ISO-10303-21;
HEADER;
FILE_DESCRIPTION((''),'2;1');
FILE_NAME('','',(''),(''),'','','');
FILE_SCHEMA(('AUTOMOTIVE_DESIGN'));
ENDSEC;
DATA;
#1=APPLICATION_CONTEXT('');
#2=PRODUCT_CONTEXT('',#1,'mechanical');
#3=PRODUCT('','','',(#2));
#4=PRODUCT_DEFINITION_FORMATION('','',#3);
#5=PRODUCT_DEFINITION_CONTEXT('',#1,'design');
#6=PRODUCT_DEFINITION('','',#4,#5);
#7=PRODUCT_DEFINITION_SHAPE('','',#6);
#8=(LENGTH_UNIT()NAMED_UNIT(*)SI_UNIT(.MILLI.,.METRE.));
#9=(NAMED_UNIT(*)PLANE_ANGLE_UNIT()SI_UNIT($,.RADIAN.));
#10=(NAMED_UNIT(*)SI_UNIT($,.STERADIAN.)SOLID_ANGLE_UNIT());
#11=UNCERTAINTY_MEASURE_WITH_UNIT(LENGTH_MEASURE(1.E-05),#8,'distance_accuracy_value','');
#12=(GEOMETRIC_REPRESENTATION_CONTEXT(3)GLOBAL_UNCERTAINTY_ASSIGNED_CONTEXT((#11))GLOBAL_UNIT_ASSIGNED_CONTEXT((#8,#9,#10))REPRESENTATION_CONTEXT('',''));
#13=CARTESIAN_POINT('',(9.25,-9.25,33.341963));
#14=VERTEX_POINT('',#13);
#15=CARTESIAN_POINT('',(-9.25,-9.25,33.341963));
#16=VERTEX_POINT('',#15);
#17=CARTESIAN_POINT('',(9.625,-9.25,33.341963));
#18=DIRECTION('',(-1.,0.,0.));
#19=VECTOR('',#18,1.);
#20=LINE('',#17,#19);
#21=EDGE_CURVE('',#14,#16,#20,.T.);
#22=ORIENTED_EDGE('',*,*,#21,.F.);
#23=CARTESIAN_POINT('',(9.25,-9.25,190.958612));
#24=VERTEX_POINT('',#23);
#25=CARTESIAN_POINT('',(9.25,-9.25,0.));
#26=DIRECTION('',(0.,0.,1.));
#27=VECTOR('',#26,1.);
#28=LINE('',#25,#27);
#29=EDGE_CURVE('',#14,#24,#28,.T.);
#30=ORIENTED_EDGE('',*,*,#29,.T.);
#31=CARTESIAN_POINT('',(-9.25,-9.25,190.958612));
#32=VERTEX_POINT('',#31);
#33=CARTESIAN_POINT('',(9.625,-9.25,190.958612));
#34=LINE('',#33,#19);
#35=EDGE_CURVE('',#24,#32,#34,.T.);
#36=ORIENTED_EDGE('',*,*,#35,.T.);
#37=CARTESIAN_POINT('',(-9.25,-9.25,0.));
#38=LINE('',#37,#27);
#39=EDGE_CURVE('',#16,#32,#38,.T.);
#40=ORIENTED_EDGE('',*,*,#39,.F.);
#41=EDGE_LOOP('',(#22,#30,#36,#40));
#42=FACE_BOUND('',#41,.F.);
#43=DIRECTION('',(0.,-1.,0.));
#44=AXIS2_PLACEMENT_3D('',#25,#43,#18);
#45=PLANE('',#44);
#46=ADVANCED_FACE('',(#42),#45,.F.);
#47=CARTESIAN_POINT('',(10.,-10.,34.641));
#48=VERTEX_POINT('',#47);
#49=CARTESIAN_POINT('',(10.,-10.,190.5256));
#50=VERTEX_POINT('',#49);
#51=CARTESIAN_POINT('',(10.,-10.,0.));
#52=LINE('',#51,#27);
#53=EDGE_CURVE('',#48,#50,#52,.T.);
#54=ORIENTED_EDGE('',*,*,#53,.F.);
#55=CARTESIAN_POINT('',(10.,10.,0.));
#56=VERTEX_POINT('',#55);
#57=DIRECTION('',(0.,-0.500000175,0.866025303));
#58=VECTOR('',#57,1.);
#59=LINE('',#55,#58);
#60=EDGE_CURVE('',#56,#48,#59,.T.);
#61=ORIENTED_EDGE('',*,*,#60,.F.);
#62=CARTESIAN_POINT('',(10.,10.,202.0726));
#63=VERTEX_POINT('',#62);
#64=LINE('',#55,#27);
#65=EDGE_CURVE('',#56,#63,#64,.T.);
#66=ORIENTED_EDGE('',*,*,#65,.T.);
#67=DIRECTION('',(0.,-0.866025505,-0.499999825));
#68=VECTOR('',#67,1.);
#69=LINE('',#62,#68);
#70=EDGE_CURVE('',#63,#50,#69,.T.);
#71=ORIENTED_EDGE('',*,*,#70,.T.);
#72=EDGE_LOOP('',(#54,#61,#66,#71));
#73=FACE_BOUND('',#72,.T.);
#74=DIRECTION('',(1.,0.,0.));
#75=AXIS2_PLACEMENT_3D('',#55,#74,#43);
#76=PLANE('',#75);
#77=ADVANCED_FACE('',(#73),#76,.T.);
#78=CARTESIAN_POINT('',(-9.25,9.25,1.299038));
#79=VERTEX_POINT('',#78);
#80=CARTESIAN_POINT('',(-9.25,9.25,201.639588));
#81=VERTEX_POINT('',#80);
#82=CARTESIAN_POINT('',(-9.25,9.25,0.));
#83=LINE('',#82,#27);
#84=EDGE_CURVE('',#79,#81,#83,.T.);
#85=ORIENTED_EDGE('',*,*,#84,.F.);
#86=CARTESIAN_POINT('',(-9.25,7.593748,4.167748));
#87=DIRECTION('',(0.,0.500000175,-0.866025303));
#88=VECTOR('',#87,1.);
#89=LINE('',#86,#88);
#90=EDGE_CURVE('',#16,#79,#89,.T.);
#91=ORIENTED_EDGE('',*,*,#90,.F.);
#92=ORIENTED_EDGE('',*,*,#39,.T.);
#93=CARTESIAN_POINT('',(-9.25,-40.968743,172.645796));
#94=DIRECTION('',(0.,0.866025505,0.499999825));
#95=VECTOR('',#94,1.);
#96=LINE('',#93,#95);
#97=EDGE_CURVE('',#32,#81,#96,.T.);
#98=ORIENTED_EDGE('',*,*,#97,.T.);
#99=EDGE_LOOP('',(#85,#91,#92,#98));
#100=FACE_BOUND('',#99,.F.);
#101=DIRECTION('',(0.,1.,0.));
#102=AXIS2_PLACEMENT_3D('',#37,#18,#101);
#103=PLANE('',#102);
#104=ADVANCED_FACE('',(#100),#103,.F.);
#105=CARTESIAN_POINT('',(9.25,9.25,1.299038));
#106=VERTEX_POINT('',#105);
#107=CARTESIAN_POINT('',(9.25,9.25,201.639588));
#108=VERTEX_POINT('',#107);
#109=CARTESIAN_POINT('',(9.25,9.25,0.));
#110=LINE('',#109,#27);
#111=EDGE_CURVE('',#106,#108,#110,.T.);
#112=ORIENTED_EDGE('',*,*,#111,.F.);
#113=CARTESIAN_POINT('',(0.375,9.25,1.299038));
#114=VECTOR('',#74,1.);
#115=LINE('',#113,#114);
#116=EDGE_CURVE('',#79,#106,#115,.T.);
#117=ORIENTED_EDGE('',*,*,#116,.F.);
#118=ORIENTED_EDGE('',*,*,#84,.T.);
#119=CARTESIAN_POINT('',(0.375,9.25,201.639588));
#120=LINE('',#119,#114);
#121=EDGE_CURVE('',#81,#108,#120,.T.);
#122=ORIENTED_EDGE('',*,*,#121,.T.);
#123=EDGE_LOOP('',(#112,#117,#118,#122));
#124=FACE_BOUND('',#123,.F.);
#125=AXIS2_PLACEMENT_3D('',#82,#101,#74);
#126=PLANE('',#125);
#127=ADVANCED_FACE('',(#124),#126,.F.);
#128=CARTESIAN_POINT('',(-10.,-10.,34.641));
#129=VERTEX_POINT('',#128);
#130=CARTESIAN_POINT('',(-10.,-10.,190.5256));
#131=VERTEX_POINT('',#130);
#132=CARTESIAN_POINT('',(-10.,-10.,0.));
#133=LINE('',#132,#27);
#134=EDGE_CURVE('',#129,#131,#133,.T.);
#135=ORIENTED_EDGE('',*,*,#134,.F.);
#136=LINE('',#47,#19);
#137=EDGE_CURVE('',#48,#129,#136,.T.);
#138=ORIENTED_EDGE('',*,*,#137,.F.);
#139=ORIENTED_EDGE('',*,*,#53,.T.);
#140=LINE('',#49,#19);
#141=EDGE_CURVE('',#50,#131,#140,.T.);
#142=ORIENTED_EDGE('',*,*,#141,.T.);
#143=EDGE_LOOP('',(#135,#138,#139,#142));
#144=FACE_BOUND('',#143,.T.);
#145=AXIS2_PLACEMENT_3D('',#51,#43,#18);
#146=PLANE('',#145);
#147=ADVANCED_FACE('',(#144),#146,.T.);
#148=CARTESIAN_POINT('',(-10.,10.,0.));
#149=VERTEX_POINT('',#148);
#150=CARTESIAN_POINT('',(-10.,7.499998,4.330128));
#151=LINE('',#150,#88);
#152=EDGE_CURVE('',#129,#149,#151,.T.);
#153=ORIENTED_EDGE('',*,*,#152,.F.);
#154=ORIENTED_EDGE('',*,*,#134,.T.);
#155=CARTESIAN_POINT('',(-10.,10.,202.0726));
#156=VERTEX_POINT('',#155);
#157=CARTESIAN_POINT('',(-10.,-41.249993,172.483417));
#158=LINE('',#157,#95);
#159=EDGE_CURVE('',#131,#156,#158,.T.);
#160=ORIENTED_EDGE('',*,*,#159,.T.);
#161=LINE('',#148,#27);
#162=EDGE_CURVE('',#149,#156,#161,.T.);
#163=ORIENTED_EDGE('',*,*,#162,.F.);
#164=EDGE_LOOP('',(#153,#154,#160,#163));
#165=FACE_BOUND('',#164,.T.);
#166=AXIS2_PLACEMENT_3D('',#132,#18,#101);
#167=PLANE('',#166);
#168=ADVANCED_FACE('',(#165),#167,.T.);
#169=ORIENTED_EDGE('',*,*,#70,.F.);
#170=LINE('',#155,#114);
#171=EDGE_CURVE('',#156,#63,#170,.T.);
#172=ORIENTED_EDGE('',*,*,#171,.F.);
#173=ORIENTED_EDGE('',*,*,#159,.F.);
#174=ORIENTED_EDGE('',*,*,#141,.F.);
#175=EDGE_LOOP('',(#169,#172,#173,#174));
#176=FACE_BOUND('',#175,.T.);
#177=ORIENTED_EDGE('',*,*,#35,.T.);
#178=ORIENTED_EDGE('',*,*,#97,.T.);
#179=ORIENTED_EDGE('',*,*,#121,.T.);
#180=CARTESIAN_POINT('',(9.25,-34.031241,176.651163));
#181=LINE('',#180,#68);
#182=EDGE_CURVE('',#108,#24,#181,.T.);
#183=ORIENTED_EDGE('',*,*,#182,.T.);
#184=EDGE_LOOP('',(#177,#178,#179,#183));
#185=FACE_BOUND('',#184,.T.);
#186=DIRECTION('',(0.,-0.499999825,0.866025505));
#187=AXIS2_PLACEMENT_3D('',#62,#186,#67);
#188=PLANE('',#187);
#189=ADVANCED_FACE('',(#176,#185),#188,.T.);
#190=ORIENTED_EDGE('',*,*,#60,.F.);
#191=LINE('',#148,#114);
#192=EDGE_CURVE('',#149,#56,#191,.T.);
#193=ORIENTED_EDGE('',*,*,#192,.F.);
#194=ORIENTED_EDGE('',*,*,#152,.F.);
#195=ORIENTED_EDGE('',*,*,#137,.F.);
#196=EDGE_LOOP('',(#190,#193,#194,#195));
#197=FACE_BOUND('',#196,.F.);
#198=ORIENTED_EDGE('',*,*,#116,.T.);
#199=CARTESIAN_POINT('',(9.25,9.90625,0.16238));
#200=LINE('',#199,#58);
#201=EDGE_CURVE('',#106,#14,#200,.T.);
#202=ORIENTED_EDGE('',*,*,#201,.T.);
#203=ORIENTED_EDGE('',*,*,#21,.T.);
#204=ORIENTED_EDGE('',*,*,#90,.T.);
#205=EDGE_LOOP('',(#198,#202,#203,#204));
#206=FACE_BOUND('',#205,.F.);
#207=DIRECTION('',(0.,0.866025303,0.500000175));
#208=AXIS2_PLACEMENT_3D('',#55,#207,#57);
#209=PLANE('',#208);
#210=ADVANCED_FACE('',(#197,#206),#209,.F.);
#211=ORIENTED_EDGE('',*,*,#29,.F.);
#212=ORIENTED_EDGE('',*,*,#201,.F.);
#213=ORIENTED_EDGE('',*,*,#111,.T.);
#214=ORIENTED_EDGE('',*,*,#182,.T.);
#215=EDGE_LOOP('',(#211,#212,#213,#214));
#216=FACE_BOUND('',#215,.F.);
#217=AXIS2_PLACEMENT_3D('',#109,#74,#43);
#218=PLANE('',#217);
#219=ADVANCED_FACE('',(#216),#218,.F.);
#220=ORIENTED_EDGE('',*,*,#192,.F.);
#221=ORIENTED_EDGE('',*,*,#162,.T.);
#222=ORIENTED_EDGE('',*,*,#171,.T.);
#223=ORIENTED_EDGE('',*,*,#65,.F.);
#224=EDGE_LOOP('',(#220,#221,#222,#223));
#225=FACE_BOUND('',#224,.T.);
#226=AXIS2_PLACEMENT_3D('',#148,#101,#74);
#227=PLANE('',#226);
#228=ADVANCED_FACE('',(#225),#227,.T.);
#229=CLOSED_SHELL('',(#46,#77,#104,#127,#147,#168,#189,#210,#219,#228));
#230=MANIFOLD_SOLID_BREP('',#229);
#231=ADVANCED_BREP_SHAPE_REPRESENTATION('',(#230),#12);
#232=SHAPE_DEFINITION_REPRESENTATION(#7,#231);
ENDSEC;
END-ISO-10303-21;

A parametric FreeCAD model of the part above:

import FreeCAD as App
import Part
import Sketcher
Q = App.Units.Quantity

doc = App.newDocument("Part")
params = doc.addObject("Spreadsheet::Sheet", "Params")
for row, (alias, value) in enumerate([
    ("sketch1_width", "20 mm"),
    ("sketch1_width2", "18.5 mm"),
    ("pad1_length", "202.0726 mm"),
    ("sketch2_width", "20 mm"),
    ("pocket1_length", "178.9786 mm"),
    ("sketch3_width", "20 mm"),
    ("pocket2_length", "202.0726 mm"),
], start=1):
    params.set(f"A{row}", alias)
    params.set(f"B{row}", "=" + value)
    params.setAlias(f"B{row}", alias)

body = doc.addObject("PartDesign::Body", "Body")

sketch1 = body.newObject("Sketcher::SketchObject", "Sketch")
sketch1.AttachmentSupport = (doc.getObject("XY_Plane"), [""])
sketch1.MapMode = "FlatFace"
sketch1.addGeometry([
    Part.LineSegment(App.Vector(-10, -10, 0), App.Vector(10, -10, 0)),
    Part.LineSegment(App.Vector(10, -10, 0), App.Vector(10, 10, 0)),
    Part.LineSegment(App.Vector(10, 10, 0), App.Vector(-10, 10, 0)),
    Part.LineSegment(App.Vector(-10, 10, 0), App.Vector(-10, -10, 0)),
    Part.LineSegment(App.Vector(9, 9, 0), App.Vector(9, -9, 0)),
    Part.LineSegment(App.Vector(9, -9, 0), App.Vector(-9, -9, 0)),
    Part.LineSegment(App.Vector(-9, -9, 0), App.Vector(-9, 9, 0)),
    Part.LineSegment(App.Vector(-9, 9, 0), App.Vector(9, 9, 0)),
], False)
sketch1.addConstraint([
    Sketcher.Constraint("Coincident", 0, 2, 1, 1),
    Sketcher.Constraint("Coincident", 1, 2, 2, 1),
    Sketcher.Constraint("Coincident", 2, 2, 3, 1),
    Sketcher.Constraint("Coincident", 3, 2, 0, 1),
    Sketcher.Constraint("Coincident", 4, 2, 5, 1),
    Sketcher.Constraint("Coincident", 5, 2, 6, 1),
    Sketcher.Constraint("Coincident", 6, 2, 7, 1),
    Sketcher.Constraint("Coincident", 7, 2, 4, 1),
    Sketcher.Constraint("Horizontal", 0),
    Sketcher.Constraint("Vertical", 1),
    Sketcher.Constraint("Horizontal", 2),
    Sketcher.Constraint("Vertical", 3),
    Sketcher.Constraint("Vertical", 4),
    Sketcher.Constraint("Horizontal", 5),
    Sketcher.Constraint("Vertical", 6),
    Sketcher.Constraint("Horizontal", 7),
    Sketcher.Constraint("Symmetric", 0, 2, 2, 2, -1, 1),
    Sketcher.Constraint("Symmetric", 4, 2, 6, 2, -1, 1),
    Sketcher.Constraint("Equal", 2, 1),
    Sketcher.Constraint("Equal", 7, 4),
    Sketcher.Constraint("DistanceX", 0, 1, 0, 2, 20.0),
    Sketcher.Constraint("DistanceX", 5, 2, 5, 1, 18.5),
])
sketch1.setExpression("Constraints[20]", "Params.sketch1_width")
sketch1.setExpression("Constraints[21]", "Params.sketch1_width2")
pad1 = body.newObject("PartDesign::Pad", "Pad")
pad1.Profile = sketch1
pad1.setExpression("Length", "Params.pad1_length")

sketch2 = body.newObject("Sketcher::SketchObject", "Sketch001")
sketch2.AttachmentSupport = (doc.getObject("YZ_Plane"), [""])
sketch2.MapMode = "FlatFace"
sketch2.AttachmentOffset = App.Placement(App.Vector(0, 0, 10), App.Rotation())
sketch2.addGeometry([
    Part.LineSegment(App.Vector(-10, 35, 0), App.Vector(-10, 0, 0)),
    Part.LineSegment(App.Vector(-10, 0, 0), App.Vector(10, 0, 0)),
    Part.LineSegment(App.Vector(10, 0, 0), App.Vector(-10, 35, 0)),
], False)
sketch2.addConstraint([
    Sketcher.Constraint("Coincident", 0, 2, 1, 1),
    Sketcher.Constraint("Coincident", 1, 2, 2, 1),
    Sketcher.Constraint("Coincident", 2, 2, 0, 1),
    Sketcher.Constraint("Vertical", 0),
    Sketcher.Constraint("Horizontal", 1),
    Sketcher.Constraint("Symmetric", 0, 2, 1, 2, -1, 1),
    Sketcher.Constraint("DistanceX", 1, 1, 1, 2, 20.0),
    Sketcher.Constraint("Angle", 2, Q("120 deg")),
])
sketch2.setExpression("Constraints[6]", "Params.sketch2_width")
pocket1 = body.newObject("PartDesign::Pocket", "Pocket")
pocket1.Profile = sketch2
pocket1.setExpression("Length", "Params.pocket1_length")

sketch3 = body.newObject("Sketcher::SketchObject", "Sketch002")
sketch3.AttachmentSupport = (doc.getObject("YZ_Plane"), [""])
sketch3.MapMode = "FlatFace"
sketch3.AttachmentOffset = App.Placement(App.Vector(0, 0, 10), App.Rotation())
sketch3.addGeometry([
    Part.LineSegment(App.Vector(-10, 191, 0), App.Vector(10, 202, 0)),
    Part.LineSegment(App.Vector(10, 202, 0), App.Vector(-10, 202, 0)),
    Part.LineSegment(App.Vector(-10, 202, 0), App.Vector(-10, 191, 0)),
], False)
sketch3.addConstraint([
    Sketcher.Constraint("Coincident", 0, 2, 1, 1),
    Sketcher.Constraint("Coincident", 1, 2, 2, 1),
    Sketcher.Constraint("Coincident", 2, 2, 0, 1),
    Sketcher.Constraint("Horizontal", 1),
    Sketcher.Constraint("Vertical", 2),
    Sketcher.Constraint("DistanceX", 1, 2, 1, 1, 20.0),
    Sketcher.Constraint("Angle", 0, Q("30 deg")),
    Sketcher.Constraint("DistanceX", -1, 1, 0, 2, 10.0),
    Sketcher.Constraint("DistanceY", -1, 1, 0, 2, 202.0726),
])
sketch3.setExpression("Constraints[5]", "Params.sketch3_width")
pocket2 = body.newObject("PartDesign::Pocket", "Pocket001")
pocket2.Profile = sketch3
pocket2.setExpression("Length", "Params.pocket2_length")

doc.recompute()
